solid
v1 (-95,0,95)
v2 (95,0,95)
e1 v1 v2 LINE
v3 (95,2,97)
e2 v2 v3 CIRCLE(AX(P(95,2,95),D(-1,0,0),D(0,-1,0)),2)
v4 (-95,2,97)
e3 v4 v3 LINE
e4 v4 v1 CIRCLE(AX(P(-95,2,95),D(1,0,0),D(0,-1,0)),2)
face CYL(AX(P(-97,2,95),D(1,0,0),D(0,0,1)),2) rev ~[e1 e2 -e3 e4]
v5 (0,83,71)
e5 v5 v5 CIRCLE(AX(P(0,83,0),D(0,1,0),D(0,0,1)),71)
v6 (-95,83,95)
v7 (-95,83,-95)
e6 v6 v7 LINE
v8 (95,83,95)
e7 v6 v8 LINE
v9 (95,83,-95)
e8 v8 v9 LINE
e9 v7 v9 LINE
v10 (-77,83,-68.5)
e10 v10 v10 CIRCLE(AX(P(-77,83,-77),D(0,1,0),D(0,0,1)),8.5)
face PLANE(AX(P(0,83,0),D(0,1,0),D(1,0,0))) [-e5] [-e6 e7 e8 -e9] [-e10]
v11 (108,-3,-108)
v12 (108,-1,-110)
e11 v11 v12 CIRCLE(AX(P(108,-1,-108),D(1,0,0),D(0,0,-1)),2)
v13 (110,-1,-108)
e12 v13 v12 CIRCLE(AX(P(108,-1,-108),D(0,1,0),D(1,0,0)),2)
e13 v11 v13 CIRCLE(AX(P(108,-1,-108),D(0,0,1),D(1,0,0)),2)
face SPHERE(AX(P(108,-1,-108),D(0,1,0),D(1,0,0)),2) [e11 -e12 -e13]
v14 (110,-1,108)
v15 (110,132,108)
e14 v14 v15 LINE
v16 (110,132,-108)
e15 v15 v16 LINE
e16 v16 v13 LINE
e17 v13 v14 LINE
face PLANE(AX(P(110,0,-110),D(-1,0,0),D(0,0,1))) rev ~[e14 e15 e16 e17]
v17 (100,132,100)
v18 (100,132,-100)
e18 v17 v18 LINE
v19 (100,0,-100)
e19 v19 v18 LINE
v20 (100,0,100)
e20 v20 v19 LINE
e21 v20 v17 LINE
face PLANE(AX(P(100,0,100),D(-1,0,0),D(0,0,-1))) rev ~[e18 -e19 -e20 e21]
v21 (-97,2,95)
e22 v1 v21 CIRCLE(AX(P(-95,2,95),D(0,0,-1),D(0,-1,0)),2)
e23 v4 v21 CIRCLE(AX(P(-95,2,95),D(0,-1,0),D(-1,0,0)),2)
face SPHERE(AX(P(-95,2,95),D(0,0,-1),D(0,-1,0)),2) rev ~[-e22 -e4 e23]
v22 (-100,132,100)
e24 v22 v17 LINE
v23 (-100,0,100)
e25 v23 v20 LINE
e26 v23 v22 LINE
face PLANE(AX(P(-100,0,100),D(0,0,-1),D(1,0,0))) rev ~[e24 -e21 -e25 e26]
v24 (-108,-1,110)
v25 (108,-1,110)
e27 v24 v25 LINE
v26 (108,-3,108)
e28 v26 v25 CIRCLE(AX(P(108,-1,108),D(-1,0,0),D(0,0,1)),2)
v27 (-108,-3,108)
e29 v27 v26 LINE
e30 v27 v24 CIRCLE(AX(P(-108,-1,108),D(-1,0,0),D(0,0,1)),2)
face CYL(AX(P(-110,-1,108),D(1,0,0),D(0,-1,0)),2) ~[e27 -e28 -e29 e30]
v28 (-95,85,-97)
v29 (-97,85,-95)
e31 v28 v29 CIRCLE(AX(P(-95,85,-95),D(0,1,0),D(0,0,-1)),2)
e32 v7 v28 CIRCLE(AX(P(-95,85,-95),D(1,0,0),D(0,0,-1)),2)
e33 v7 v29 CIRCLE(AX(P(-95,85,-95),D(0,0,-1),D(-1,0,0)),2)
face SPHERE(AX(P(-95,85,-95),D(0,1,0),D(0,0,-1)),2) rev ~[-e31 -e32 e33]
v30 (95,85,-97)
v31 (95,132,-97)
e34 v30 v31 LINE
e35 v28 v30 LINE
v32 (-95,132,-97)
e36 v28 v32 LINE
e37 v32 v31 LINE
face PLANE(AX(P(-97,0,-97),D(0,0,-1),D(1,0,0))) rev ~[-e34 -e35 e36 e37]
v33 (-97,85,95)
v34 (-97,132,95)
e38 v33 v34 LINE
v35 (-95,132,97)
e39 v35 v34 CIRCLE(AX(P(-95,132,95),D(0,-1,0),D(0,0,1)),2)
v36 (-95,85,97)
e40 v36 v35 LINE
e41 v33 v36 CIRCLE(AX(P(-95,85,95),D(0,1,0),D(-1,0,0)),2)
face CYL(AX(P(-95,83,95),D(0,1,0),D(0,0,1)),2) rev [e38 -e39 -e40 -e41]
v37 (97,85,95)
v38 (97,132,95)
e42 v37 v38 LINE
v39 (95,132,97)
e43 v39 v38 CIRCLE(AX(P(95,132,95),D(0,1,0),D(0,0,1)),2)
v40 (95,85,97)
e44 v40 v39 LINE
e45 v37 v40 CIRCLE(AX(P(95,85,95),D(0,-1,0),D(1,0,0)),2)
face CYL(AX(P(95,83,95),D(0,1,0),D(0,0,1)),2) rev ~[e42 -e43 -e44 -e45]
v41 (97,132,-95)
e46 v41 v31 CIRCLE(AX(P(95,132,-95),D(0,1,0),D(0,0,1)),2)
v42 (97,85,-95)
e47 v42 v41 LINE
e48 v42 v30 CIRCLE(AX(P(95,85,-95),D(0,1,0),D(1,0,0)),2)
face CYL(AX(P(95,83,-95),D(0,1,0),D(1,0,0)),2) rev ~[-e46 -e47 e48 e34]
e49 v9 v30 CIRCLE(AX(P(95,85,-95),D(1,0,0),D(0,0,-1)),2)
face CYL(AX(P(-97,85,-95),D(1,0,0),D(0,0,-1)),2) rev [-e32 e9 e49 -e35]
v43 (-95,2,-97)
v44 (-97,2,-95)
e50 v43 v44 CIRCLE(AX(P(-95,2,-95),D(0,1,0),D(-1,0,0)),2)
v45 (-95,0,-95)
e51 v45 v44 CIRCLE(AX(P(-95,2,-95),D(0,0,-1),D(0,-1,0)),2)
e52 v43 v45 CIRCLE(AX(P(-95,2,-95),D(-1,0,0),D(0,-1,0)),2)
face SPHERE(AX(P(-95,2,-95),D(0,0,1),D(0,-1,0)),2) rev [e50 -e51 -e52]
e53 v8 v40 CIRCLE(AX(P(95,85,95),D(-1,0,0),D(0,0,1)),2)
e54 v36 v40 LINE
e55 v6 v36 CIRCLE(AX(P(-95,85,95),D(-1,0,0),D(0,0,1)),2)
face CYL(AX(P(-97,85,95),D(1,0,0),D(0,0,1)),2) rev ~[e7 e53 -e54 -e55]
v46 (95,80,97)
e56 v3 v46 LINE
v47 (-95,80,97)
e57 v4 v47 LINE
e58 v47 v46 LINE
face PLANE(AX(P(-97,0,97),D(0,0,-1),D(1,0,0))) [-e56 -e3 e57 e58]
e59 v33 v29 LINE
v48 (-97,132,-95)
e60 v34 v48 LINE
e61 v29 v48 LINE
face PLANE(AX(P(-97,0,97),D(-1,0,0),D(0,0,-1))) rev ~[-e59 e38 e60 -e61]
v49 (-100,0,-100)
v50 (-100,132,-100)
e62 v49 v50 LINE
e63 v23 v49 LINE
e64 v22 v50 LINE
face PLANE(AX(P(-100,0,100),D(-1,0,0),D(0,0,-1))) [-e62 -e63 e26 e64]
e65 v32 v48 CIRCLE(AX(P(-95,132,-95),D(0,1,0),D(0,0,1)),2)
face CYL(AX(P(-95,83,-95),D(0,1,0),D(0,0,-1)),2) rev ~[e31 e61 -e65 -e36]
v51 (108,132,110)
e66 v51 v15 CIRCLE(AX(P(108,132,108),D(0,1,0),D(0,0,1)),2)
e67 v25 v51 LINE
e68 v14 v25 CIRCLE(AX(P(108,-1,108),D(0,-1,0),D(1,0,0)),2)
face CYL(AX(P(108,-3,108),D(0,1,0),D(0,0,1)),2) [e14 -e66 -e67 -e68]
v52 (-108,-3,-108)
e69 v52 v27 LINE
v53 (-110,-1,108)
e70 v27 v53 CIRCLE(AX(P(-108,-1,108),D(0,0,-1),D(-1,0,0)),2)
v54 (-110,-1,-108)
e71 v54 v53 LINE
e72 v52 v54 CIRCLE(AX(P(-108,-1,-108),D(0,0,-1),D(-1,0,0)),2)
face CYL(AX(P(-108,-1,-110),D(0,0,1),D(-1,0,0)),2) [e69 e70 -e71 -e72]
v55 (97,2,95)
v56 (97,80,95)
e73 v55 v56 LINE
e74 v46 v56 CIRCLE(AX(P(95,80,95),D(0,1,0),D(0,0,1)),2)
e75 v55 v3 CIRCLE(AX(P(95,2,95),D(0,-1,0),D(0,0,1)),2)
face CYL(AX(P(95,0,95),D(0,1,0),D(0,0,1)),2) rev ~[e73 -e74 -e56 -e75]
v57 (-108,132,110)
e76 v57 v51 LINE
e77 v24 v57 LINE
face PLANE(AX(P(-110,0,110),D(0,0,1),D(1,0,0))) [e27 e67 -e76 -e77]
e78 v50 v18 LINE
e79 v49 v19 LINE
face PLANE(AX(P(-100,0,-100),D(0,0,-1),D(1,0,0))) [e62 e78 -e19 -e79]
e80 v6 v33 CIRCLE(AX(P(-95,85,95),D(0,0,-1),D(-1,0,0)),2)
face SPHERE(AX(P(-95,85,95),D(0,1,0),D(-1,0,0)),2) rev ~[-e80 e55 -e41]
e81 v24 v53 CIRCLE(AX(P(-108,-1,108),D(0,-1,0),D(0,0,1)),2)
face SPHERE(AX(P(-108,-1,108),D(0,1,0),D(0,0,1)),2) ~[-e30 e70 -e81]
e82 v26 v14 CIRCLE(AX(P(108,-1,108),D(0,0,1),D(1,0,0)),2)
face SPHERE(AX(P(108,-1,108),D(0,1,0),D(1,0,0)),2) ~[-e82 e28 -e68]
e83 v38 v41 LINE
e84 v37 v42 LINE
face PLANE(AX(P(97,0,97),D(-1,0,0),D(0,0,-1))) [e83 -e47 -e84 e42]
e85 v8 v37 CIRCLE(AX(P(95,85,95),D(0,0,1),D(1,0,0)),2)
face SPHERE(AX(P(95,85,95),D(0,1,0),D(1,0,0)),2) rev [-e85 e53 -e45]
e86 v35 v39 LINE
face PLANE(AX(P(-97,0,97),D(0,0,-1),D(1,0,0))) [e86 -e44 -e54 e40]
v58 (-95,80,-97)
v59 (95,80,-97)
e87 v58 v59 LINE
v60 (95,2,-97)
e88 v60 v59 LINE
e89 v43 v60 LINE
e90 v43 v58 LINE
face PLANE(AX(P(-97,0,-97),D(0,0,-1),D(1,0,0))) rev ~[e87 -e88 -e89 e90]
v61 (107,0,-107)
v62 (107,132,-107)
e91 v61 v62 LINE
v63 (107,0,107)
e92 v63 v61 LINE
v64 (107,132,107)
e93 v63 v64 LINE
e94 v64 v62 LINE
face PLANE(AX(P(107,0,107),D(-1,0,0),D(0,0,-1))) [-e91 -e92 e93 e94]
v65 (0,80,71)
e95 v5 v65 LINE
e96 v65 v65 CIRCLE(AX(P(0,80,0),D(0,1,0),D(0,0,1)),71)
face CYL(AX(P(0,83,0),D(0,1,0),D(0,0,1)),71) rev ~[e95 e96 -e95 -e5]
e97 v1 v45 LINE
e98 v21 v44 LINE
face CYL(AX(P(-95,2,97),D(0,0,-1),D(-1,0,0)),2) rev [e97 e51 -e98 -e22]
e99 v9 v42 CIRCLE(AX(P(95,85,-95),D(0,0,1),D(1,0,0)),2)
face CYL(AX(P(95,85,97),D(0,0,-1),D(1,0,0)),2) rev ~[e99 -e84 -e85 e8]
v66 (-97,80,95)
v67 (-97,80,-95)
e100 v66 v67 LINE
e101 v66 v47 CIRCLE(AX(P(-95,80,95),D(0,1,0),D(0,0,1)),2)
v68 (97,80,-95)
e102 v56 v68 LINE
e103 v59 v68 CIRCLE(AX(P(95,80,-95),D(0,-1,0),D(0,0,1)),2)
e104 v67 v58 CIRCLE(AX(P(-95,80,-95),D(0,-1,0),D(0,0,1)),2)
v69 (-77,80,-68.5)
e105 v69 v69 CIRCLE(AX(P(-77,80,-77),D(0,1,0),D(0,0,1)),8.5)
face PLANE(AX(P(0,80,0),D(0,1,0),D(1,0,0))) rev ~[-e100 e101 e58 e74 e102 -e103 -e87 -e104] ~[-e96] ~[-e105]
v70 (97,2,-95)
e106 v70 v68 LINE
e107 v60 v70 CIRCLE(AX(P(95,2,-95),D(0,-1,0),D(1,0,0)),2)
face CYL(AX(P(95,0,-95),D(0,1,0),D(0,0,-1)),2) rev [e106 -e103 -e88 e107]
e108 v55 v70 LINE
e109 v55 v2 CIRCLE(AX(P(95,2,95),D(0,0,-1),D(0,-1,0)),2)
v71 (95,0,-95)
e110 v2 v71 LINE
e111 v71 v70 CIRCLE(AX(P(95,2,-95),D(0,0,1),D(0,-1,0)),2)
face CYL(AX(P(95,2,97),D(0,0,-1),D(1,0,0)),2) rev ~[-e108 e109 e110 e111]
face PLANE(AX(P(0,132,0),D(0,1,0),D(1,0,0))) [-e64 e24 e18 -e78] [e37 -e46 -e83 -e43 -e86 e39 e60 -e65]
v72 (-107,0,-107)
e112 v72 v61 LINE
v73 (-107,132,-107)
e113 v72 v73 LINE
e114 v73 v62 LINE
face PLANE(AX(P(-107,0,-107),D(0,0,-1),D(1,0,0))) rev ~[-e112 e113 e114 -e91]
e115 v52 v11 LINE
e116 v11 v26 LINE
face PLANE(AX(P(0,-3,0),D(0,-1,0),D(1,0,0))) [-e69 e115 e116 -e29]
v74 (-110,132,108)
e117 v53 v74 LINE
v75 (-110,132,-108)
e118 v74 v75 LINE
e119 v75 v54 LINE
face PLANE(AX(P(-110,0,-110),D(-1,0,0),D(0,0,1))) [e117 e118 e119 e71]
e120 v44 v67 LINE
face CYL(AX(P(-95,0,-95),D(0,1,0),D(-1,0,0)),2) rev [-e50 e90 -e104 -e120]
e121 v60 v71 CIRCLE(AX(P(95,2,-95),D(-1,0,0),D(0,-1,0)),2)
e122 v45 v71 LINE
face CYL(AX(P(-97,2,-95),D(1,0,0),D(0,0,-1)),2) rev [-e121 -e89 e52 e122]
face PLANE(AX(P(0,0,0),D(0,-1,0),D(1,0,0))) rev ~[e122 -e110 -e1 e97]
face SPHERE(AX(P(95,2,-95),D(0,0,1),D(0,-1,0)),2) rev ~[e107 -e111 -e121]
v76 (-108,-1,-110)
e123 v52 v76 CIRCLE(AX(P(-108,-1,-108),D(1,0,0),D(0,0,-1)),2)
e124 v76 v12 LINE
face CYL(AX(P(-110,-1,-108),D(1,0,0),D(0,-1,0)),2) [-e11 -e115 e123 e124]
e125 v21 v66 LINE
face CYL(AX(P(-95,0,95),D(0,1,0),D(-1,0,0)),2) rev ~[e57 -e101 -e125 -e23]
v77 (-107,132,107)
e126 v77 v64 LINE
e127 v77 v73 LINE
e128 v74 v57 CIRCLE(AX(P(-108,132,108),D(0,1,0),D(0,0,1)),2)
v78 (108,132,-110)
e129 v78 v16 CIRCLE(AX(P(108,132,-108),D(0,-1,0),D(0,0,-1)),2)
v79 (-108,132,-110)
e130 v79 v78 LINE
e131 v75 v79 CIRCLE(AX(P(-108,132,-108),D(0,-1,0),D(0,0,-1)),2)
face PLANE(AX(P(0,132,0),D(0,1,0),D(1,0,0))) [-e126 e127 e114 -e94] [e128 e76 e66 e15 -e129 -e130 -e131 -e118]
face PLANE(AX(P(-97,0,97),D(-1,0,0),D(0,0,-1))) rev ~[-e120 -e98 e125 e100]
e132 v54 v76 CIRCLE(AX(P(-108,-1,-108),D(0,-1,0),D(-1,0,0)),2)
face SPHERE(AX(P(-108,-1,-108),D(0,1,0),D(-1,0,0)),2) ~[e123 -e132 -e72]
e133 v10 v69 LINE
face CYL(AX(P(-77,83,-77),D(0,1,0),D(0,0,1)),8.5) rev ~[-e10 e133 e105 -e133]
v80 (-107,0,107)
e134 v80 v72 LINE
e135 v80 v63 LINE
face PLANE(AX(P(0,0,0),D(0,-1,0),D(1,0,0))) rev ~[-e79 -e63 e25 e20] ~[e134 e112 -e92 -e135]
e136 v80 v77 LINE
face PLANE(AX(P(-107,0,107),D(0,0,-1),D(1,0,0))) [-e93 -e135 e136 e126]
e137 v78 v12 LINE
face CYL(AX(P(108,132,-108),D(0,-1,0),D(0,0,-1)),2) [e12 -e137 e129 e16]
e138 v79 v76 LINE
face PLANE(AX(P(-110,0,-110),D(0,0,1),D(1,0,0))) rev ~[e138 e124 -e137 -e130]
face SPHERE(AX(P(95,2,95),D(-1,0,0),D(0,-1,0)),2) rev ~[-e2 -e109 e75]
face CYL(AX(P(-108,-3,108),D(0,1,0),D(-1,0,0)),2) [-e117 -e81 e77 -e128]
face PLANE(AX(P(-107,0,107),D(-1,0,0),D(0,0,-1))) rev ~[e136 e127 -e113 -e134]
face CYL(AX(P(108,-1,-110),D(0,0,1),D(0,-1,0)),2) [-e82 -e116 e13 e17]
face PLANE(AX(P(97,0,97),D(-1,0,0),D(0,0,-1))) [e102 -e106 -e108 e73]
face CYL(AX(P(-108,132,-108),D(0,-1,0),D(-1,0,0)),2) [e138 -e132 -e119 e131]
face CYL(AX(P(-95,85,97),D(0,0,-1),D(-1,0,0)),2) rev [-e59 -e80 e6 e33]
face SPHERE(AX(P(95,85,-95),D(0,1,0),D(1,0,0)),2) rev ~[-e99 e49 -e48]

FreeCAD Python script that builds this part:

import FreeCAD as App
import Part
import Sketcher

V = App.Vector


def edges_at(feature, points):
    """Names of the edges that pass closest to the given points."""
    edges = feature.Shape.Edges
    near = lambda p: min(range(len(edges)), key=lambda i: edges[i].distToShape(Part.Vertex(*p))[0])
    return sorted({f"Edge{near(p) + 1}" for p in points})


def add_polygon(sketch, points):
    """Adds a closed chain of lines whose ends are joined by coincident constraints."""
    first, n = sketch.GeometryCount, len(points)
    for a, b in zip(points, points[1:] + points[:1]):
        sketch.addGeometry(Part.LineSegment(App.Vector(*a, 0), App.Vector(*b, 0)), False)
    for i in range(n):
        sketch.addConstraint(Sketcher.Constraint("Coincident", first + i, 2, first + (i + 1) % n, 1))

doc = App.newDocument("Part")
body = doc.addObject("PartDesign::Body", "Body")

# Sketch on XZ plane
sketch1 = doc.addObject("Sketcher::SketchObject", "Sketch")
body.addObject(sketch1)
sketch1.AttachmentSupport = (doc.XZ_Plane, [""])
sketch1.MapMode = "FlatFace"
add_polygon(sketch1, [(-100, -100), (-100, 100), (100, 100), (100, -100)])  # lines 0-3
add_polygon(sketch1, [(97, 97), (-97, 97), (-97, -97), (97, -97)])  # lines 4-7
sketch1.addConstraint([
    Sketcher.Constraint("Vertical", 0),
    Sketcher.Constraint("Horizontal", 1),
    Sketcher.Constraint("Vertical", 2),
    Sketcher.Constraint("Horizontal", 3),
    Sketcher.Constraint("Horizontal", 4),
    Sketcher.Constraint("Vertical", 5),
    Sketcher.Constraint("Horizontal", 6),
    Sketcher.Constraint("Vertical", 7),
    Sketcher.Constraint("Symmetric", 0, 2, 2, 2, -1, 1),
    Sketcher.Constraint("Symmetric", 4, 2, 6, 2, -1, 1),
    Sketcher.Constraint("Equal", 3, 0),
    Sketcher.Constraint("Equal", 6, 5),
    Sketcher.Constraint("DistanceX", 1, 1, 1, 2, 200.0),
    Sketcher.Constraint("DistanceX", 4, 2, 4, 1, 194.0),
])
pad1 = doc.addObject("PartDesign::Pad", "Pad")
body.addObject(pad1)
pad1.Profile = sketch1
pad1.Length = 132
pad1.Reversed = True
body2 = doc.addObject("PartDesign::Body", "Body001")

# Sketch on XZ plane
sketch2 = doc.addObject("Sketcher::SketchObject", "Sketch001")
body2.addObject(sketch2)
sketch2.AttachmentSupport = (doc.getObject("XZ_Plane001"), [""])
sketch2.MapMode = "FlatFace"
add_polygon(sketch2, [(-110, -110), (-110, 110), (110, 110), (110, -110)])  # lines 0-3
add_polygon(sketch2, [(107, 107), (-107, 107), (-107, -107), (107, -107)])  # lines 4-7
sketch2.addConstraint([
    Sketcher.Constraint("Vertical", 0),
    Sketcher.Constraint("Horizontal", 1),
    Sketcher.Constraint("Vertical", 2),
    Sketcher.Constraint("Horizontal", 3),
    Sketcher.Constraint("Horizontal", 4),
    Sketcher.Constraint("Vertical", 5),
    Sketcher.Constraint("Horizontal", 6),
    Sketcher.Constraint("Vertical", 7),
    Sketcher.Constraint("Symmetric", 0, 2, 2, 2, -1, 1),
    Sketcher.Constraint("Symmetric", 4, 2, 6, 2, -1, 1),
    Sketcher.Constraint("Equal", 3, 0),
    Sketcher.Constraint("Equal", 6, 5),
    Sketcher.Constraint("DistanceX", 1, 1, 1, 2, 220.0),
    Sketcher.Constraint("DistanceX", 4, 2, 4, 1, 214.0),
])
pad2 = doc.addObject("PartDesign::Pad", "Pad001")
body2.addObject(pad2)
pad2.Profile = sketch2
pad2.Length = 132
pad2.Reversed = True
body.AllowCompound = True
doc.recompute()

boolean = doc.addObject("PartDesign::Boolean", "Boolean")
body.addObject(boolean)
boolean.Type = "Fuse"
boolean.addObjects([body2])

# Sketch on XZ plane
sketch3 = doc.addObject("Sketcher::SketchObject", "Sketch002")
body.addObject(sketch3)
sketch3.AttachmentSupport = (doc.XZ_Plane, [""])
sketch3.MapMode = "FlatFace"
add_polygon(sketch3, [(-110, 110), (-110, -110), (110, -110), (110, 110)])  # lines 0-3
sketch3.addConstraint([
    Sketcher.Constraint("Vertical", 0),
    Sketcher.Constraint("Horizontal", 1),
    Sketcher.Constraint("Vertical", 2),
    Sketcher.Constraint("Horizontal", 3),
    Sketcher.Constraint("Symmetric", 0, 2, 2, 2, -1, 1),
    Sketcher.Constraint("Equal", 3, 0),
    Sketcher.Constraint("DistanceX", 1, 1, 1, 2, 220.0),
])
pad3 = doc.addObject("PartDesign::Pad", "Pad002")
body.addObject(pad3)
pad3.Profile = sketch3
pad3.Length = 3

# Sketch on XZ plane
sketch4 = doc.addObject("Sketcher::SketchObject", "Sketch003")
body.addObject(sketch4)
sketch4.AttachmentSupport = (doc.XZ_Plane, [""])
sketch4.MapMode = "FlatFace"
sketch4.AttachmentOffset = App.Placement(V(0, 0, -80), App.Rotation())
add_polygon(sketch4, [(-97, -97), (-97, 97), (97, 97), (97, -97)])  # lines 0-3
sketch4.addConstraint([
    Sketcher.Constraint("Vertical", 0),
    Sketcher.Constraint("Horizontal", 1),
    Sketcher.Constraint("Vertical", 2),
    Sketcher.Constraint("Horizontal", 3),
    Sketcher.Constraint("Symmetric", 0, 2, 2, 2, -1, 1),
    Sketcher.Constraint("Equal", 3, 0),
    Sketcher.Constraint("DistanceX", 1, 1, 1, 2, 194.0),
])
pad4 = doc.addObject("PartDesign::Pad", "Pad003")
body.addObject(pad4)
pad4.Profile = sketch4
pad4.Length = 3
pad4.Reversed = True

# Sketch on XZ plane
sketch5 = doc.addObject("Sketcher::SketchObject", "Sketch004")
body.addObject(sketch5)
sketch5.AttachmentSupport = (doc.XZ_Plane, [""])
sketch5.MapMode = "FlatFace"
sketch5.AttachmentOffset = App.Placement(V(0, 0, -83), App.Rotation())
sketch5.addGeometry(Part.Circle(V(0, 0, 0), V(0, 0, 1), 71), False)
sketch5.addConstraint([
    Sketcher.Constraint("Coincident", 0, 3, -1, 1),
    Sketcher.Constraint("Diameter", 0, 142.0),
])
pocket1 = doc.addObject("PartDesign::Pocket", "Pocket")
body.addObject(pocket1)
pocket1.Profile = sketch5
pocket1.Length = 3
pocket1.Reversed = True

# Sketch on XZ plane
sketch6 = doc.addObject("Sketcher::SketchObject", "Sketch005")
body.addObject(sketch6)
sketch6.AttachmentSupport = (doc.XZ_Plane, [""])
sketch6.MapMode = "FlatFace"
sketch6.AttachmentOffset = App.Placement(V(0, 0, -83), App.Rotation())
sketch6.addGeometry(Part.Circle(V(-77, -77, 0), V(0, 0, 1), 8), False)
sketch6.addConstraint([
    Sketcher.Constraint("Diameter", 0, 17.0),
    Sketcher.Constraint("DistanceX", 0, 3, -1, 1, 77.0),
    Sketcher.Constraint("DistanceY", 0, 3, -1, 1, 77.0),
])
pocket2 = doc.addObject("PartDesign::Pocket", "Pocket001")
body.addObject(pocket2)
pocket2.Profile = sketch6
pocket2.Length = 3
pocket2.Reversed = True
doc.recompute()

fillet = doc.addObject("PartDesign::Fillet", "Fillet")
body.addObject(fillet)
fillet.Base = (pocket2, edges_at(pocket2, [
    (-97, 0, 0),
    (0, 0, 97),
    (97, 0, 0),
    (0, 0, -97),
    (-97, 107.5, -97),
    (-97, 107.5, 97),
    (97, 107.5, 97),
    (97, 107.5, -97),
    (110, 64.5, -110),
    (110, 64.5, 110),
    (-110, 64.5, 110),
    (-110, 64.5, -110),
    (110, -3, 0),
    (0, -3, 110),
    (-110, -3, 0),
    (0, -3, -110),
    (-97, 40, -97),
    (-97, 40, 97),
    (97, 40, 97),
    (97, 40, -97),
    (97, 83, 0),
    (0, 83, -97),
    (-97, 83, 0),
    (0, 83, 97),
]))
fillet.Radius = 2

doc.recompute()
